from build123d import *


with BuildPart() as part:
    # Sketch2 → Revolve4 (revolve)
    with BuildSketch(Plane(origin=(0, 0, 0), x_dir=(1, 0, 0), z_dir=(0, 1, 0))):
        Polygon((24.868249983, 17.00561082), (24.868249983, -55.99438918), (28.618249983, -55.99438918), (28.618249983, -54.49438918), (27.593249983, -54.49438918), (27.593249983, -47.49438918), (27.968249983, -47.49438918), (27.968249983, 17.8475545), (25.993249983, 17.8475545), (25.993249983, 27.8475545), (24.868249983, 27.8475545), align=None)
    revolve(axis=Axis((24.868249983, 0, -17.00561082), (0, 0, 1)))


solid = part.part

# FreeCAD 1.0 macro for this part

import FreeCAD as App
import Part
import Sketcher

V = App.Vector


def add_polygon(sketch, points):
    """Adds a closed chain of lines whose ends are joined by coincident constraints."""
    first, n = sketch.GeometryCount, len(points)
    for a, b in zip(points, points[1:] + points[:1]):
        sketch.addGeometry(Part.LineSegment(App.Vector(*a, 0), App.Vector(*b, 0)), False)
    for i in range(n):
        sketch.addConstraint(Sketcher.Constraint("Coincident", first + i, 2, first + (i + 1) % n, 1))

doc = App.newDocument("Part")
params = doc.addObject("Spreadsheet::Sheet", "Params")
for row, (alias, value) in enumerate([
    ("sketch1_height", "7 mm"),
    ("sketch1_height2", "10 mm"),
    ("sketch1_height3", "1.5 mm"),
    ("sketch1_width", "3.75 mm"),
    ("revolution_angle", "360 deg"),
], start=1):
    params.set(f"A{row}", alias)
    params.set(f"B{row}", "=" + value)
    params.setAlias(f"B{row}", alias)

body = doc.addObject("PartDesign::Body", "Body")

# Sketch on XZ plane
sketch1 = body.newObject("Sketcher::SketchObject", "Sketch")
sketch1.AttachmentSupport = (doc.getObject("XZ_Plane"), [""])
sketch1.MapMode = "FlatFace"
add_polygon(sketch1, [(24.87, 55.99), (28.62, 55.99), (28.62, 54.49), (27.59, 54.49), (27.59, 47.49), (27.97, 47.49), (27.97, -17.85), (25.99, -17.85), (25.99, -27.85), (24.87, -27.85)])  # lines 0-9
sketch1.addGeometry(Part.LineSegment(V(24.87, -27.85, 0), V(24.87, 55.99, 0)), True)  # axis
sketch1.addConstraint([
    Sketcher.Constraint("Horizontal", 0),
    Sketcher.Constraint("Vertical", 1),
    Sketcher.Constraint("Horizontal", 2),
    Sketcher.Constraint("Vertical", 3),
    Sketcher.Constraint("Horizontal", 4),
    Sketcher.Constraint("Vertical", 5),
    Sketcher.Constraint("Horizontal", 6),
    Sketcher.Constraint("Vertical", 7),
    Sketcher.Constraint("Horizontal", 8),
    Sketcher.Constraint("Vertical", 9),
    Sketcher.Constraint("Vertical", 10),
    Sketcher.Constraint("Coincident", 10, 1, 8, 2),
    Sketcher.Constraint("Horizontal", 0, 2, 10, 2),
    Sketcher.Constraint("DistanceY", 3, 2, 3, 1, 7.0),
    Sketcher.Constraint("DistanceY", 7, 2, 7, 1, 10.0),
    Sketcher.Constraint("DistanceY", 1, 2, 1, 1, 1.5),
    Sketcher.Constraint("DistanceX", 0, 1, 0, 2, 3.75),
    Sketcher.Constraint("DistanceX", 6, 2, 3, 2, 1.6),
    Sketcher.Constraint("DistanceX", 8, 2, 5, 2, 3.1),
    Sketcher.Constraint("DistanceX", 2, 2, 2, 1, 1.025),
    Sketcher.Constraint("DistanceY", 5, 2, 5, 1, 65.341944),
    Sketcher.Constraint("DistanceX", -1, 1, 0, 2, 28.61825),
    Sketcher.Constraint("DistanceY", -1, 1, 0, 2, 55.994389),
])
sketch1.setExpression("Constraints[23]", "Params.sketch1_height")
sketch1.setExpression("Constraints[24]", "Params.sketch1_height2")
sketch1.setExpression("Constraints[25]", "Params.sketch1_height3")
sketch1.setExpression("Constraints[26]", "Params.sketch1_width")
revolution = body.newObject("PartDesign::Revolution", "Revolution")
revolution.Profile = sketch1
revolution.ReferenceAxis = (sketch1, ["Axis0"])
revolution.setExpression("Angle", "Params.revolution_angle")

doc.recompute()
